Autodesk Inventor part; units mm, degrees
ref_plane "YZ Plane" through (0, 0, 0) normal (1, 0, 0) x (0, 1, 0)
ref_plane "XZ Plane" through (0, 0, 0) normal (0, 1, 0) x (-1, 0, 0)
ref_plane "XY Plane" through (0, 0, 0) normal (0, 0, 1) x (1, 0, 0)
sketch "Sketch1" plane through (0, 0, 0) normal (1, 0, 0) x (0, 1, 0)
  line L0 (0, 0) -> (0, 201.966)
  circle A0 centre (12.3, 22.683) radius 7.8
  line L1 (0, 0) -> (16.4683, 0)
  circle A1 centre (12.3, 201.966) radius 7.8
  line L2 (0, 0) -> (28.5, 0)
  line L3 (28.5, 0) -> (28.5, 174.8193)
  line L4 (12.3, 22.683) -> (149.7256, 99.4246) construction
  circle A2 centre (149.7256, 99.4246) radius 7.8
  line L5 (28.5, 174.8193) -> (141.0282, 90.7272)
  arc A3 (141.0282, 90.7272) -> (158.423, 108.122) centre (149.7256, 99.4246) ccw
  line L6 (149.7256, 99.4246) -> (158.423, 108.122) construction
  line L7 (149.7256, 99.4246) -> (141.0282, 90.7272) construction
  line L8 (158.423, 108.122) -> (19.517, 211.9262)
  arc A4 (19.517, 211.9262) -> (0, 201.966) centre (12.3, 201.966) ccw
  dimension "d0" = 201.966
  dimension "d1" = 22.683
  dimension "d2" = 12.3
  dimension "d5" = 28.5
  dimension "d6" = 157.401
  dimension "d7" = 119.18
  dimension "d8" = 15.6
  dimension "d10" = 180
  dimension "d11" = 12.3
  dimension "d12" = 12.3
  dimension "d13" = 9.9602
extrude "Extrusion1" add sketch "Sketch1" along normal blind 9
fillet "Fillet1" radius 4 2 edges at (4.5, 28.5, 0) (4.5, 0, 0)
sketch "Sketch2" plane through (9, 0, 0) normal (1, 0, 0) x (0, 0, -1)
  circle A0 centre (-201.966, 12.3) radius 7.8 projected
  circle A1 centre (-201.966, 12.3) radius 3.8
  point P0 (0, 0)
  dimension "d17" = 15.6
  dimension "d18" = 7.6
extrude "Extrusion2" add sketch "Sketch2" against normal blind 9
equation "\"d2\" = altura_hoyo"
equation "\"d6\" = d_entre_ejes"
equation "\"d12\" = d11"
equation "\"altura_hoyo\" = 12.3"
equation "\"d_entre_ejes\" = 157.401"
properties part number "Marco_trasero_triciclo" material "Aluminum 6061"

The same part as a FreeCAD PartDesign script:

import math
import FreeCAD as App
import Part
import Sketcher
from FreeCAD import Vector
Q = App.Units.Quantity


def edges_at(feature, points):
    """Names of the edges that pass closest to the given points."""
    edges = feature.Shape.Edges
    near = lambda p: min(range(len(edges)), key=lambda i: edges[i].distToShape(Part.Vertex(*p))[0])
    return sorted({f"Edge{near(p) + 1}" for p in points})

doc = App.newDocument("Part")
body = doc.addObject("PartDesign::Body", "Body")

sketch1 = body.newObject("Sketcher::SketchObject", "Sketch")
sketch1.AttachmentSupport = (doc.getObject("YZ_Plane"), [""])
sketch1.MapMode = "FlatFace"
sketch1.addGeometry(Part.LineSegment(Vector(0, 201.966, 0), Vector(0, 0, 0)), False)
sketch1.addGeometry(Part.LineSegment(Vector(0, 0, 0), Vector(28.5, 0, 0)), False)
sketch1.addGeometry(Part.LineSegment(Vector(28.5, 0, 0), Vector(28.5, 174.8193, 0)), False)
sketch1.addGeometry(Part.LineSegment(Vector(28.5, 174.8193, 0), Vector(141.0282, 90.7272, 0)), False)
sketch1.addGeometry(Part.ArcOfCircle(Part.Circle(Vector(149.7256, 99.4246, 0), Vector(0, 0, 1), 12.299981), math.radians(-135), math.radians(45)), False)
sketch1.addGeometry(Part.LineSegment(Vector(158.423, 108.122, 0), Vector(19.517, 211.9262, 0)), False)
sketch1.addGeometry(Part.ArcOfCircle(Part.Circle(Vector(12.3, 201.966, 0), Vector(0, 0, 1), 12.300027), math.radians(54.07352), math.radians(180)), False)
sketch1.addGeometry(Part.Circle(Vector(12.3, 22.683, 0), Vector(0, 0, 1), 7.8), False)
sketch1.addGeometry(Part.Circle(Vector(149.7256, 99.4246, 0), Vector(0, 0, 1), 7.8), False)
sketch1.addGeometry(Part.Circle(Vector(12.3, 201.966, 0), Vector(0, 0, 1), 7.8), False)
sketch1.addConstraint(Sketcher.Constraint("Coincident", 0, 2, 1, 1))
sketch1.addConstraint(Sketcher.Constraint("Coincident", 1, 2, 2, 1))
sketch1.addConstraint(Sketcher.Constraint("Coincident", 2, 2, 3, 1))
sketch1.addConstraint(Sketcher.Constraint("Coincident", 3, 2, 4, 1))
sketch1.addConstraint(Sketcher.Constraint("Coincident", 4, 2, 5, 1))
sketch1.addConstraint(Sketcher.Constraint("Coincident", 5, 2, 6, 1))
sketch1.addConstraint(Sketcher.Constraint("Tangent", 6, 2, 0, 1))
sketch1.addConstraint(Sketcher.Constraint("Vertical", 0))
sketch1.addConstraint(Sketcher.Constraint("Horizontal", 1))
sketch1.addConstraint(Sketcher.Constraint("Vertical", 2))
sketch1.addConstraint(Sketcher.Constraint("Coincident", 0, 2, -1, 1))
sketch1.addConstraint(Sketcher.Constraint("Coincident", 8, 3, 4, 3))
sketch1.addConstraint(Sketcher.Constraint("Coincident", 9, 3, 6, 3))
sketch1.addConstraint(Sketcher.Constraint("Equal", 4, 6))
sketch1.addConstraint(Sketcher.Constraint("Equal", 7, 8))
sketch1.addConstraint(Sketcher.Constraint("Equal", 8, 9))
sketch1.addConstraint(Sketcher.Constraint("Parallel", 3, 5))
sketch1.addConstraint(Sketcher.Constraint("Vertical", 6, 3, 7, 3))
sketch1.addConstraint(Sketcher.Constraint("Diameter", 7, Q("15.6 mm")))
sketch1.addConstraint(Sketcher.Constraint("Radius", 4, Q("12.3 mm")))
sketch1.addConstraint(Sketcher.Constraint("DistanceX", 1, 1, 1, 2, Q("28.5 mm")))
sketch1.addConstraint(Sketcher.Constraint("DistanceY", 0, 2, 0, 1, Q("201.966 mm")))
sketch1.addConstraint(Sketcher.Constraint("DistanceY", -1, 1, 7, 3, Q("22.683 mm")))
sketch1.addConstraint(Sketcher.Constraint("Angle", 3, Q("-36.7707 deg")))
sketch1.addConstraint(Sketcher.Constraint("DistanceY", 6, 3, 5, 2, Q("9.9602 mm")))
sketch1.addConstraint(Sketcher.Constraint("Distance", 3, Q("140.478 mm")))
sketch1.addConstraint(Sketcher.Constraint("DistanceY", 2, 1, 2, 2, Q("174.8193 mm")))
sketch1.addConstraint(Sketcher.Constraint("DistanceX", -1, 1, 4, 3, Q("149.7256 mm")))
pad1 = body.newObject("PartDesign::Pad", "Pad")
pad1.Profile = sketch1
pad1.Length = 9
doc.recompute()

fillet = body.newObject("PartDesign::Fillet", "Fillet")
fillet.Base = (pad1, edges_at(pad1, [(4.5, 28.5, 0), (4.5, 0, 0)]))
fillet.Radius = 4

sketch2 = body.newObject("Sketcher::SketchObject", "Sketch001")
sketch2.AttachmentSupport = (doc.getObject("YZ_Plane"), [""])
sketch2.MapMode = "FlatFace"
sketch2.AttachmentOffset = App.Placement(Vector(0, 0, 9), App.Rotation())
sketch2.addGeometry(Part.Circle(Vector(12.3, 201.966, 0), Vector(0, 0, 1), 7.8), False)
sketch2.addGeometry(Part.Circle(Vector(12.3, 201.966, 0), Vector(0, 0, 1), 3.8), False)
sketch2.addConstraint(Sketcher.Constraint("Coincident", 1, 3, 0, 3))
sketch2.addConstraint(Sketcher.Constraint("Diameter", 0, Q("15.6 mm")))
sketch2.addConstraint(Sketcher.Constraint("Diameter", 1, Q("7.6 mm")))
sketch2.addConstraint(Sketcher.Constraint("DistanceX", -1, 1, 0, 3, Q("12.3 mm")))
sketch2.addConstraint(Sketcher.Constraint("DistanceY", -1, 1, 0, 3, Q("201.966 mm")))
pad2 = body.newObject("PartDesign::Pad", "Pad001")
pad2.Profile = sketch2
pad2.Length = 9
pad2.Reversed = True

doc.recompute()
